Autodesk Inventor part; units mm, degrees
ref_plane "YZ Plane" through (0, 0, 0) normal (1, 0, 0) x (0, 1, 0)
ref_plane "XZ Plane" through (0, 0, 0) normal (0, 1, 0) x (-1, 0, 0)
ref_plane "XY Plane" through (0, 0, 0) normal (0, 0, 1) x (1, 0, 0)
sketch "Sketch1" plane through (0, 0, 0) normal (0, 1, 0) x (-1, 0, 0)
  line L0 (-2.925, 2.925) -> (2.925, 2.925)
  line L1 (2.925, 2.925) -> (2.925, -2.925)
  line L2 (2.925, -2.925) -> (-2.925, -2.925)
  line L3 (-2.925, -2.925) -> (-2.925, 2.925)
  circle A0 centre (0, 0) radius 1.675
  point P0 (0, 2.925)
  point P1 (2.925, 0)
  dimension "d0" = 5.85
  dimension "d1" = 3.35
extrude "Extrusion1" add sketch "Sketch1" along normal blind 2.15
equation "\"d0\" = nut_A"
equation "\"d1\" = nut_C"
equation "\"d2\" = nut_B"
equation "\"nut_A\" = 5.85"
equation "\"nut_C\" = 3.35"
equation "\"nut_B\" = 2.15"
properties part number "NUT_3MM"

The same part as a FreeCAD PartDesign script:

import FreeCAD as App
import Part
import Sketcher

V = App.Vector
Q = App.Units.Quantity

doc = App.newDocument("Part")
body = doc.addObject("PartDesign::Body", "Body")

# Sketch on XZ plane
sketch1 = body.newObject("Sketcher::SketchObject", "Sketch")
sketch1.AttachmentSupport = (doc.getObject("XZ_Plane"), [""])
sketch1.MapMode = "FlatFace"
sketch1.addGeometry([
    Part.LineSegment(V(-2.925, 2.925, 0), V(2.925, 2.925, 0)),  # 0
    Part.LineSegment(V(2.925, 2.925, 0), V(2.925, -2.925, 0)),  # 1
    Part.LineSegment(V(2.925, -2.925, 0), V(-2.925, -2.925, 0)),  # 2
    Part.LineSegment(V(-2.925, -2.925, 0), V(-2.925, 2.925, 0)),  # 3
    Part.Circle(V(0, 0, 0), V(0, 0, 1), 1.675),  # 4
], False)
sketch1.addConstraint([
    Sketcher.Constraint("Coincident", 0, 2, 1, 1),
    Sketcher.Constraint("Coincident", 1, 2, 2, 1),
    Sketcher.Constraint("Coincident", 2, 2, 3, 1),
    Sketcher.Constraint("Coincident", 3, 2, 0, 1),
    Sketcher.Constraint("Horizontal", 0),
    Sketcher.Constraint("Vertical", 1),
    Sketcher.Constraint("Horizontal", 2),
    Sketcher.Constraint("Vertical", 3),
    Sketcher.Constraint("Coincident", 4, 3, -1, 1),
    Sketcher.Constraint("Symmetric", 0, 2, 2, 2, -1, 1),
    Sketcher.Constraint("Equal", 2, 1),
    Sketcher.Constraint("Diameter", 4, Q("3.35 mm")),
    Sketcher.Constraint("DistanceX", 0, 1, 0, 2, Q("5.85 mm")),
])
pad1 = body.newObject("PartDesign::Pad", "Pad")
pad1.Profile = sketch1
pad1.Length = 2.15
pad1.Reversed = True

doc.recompute()
